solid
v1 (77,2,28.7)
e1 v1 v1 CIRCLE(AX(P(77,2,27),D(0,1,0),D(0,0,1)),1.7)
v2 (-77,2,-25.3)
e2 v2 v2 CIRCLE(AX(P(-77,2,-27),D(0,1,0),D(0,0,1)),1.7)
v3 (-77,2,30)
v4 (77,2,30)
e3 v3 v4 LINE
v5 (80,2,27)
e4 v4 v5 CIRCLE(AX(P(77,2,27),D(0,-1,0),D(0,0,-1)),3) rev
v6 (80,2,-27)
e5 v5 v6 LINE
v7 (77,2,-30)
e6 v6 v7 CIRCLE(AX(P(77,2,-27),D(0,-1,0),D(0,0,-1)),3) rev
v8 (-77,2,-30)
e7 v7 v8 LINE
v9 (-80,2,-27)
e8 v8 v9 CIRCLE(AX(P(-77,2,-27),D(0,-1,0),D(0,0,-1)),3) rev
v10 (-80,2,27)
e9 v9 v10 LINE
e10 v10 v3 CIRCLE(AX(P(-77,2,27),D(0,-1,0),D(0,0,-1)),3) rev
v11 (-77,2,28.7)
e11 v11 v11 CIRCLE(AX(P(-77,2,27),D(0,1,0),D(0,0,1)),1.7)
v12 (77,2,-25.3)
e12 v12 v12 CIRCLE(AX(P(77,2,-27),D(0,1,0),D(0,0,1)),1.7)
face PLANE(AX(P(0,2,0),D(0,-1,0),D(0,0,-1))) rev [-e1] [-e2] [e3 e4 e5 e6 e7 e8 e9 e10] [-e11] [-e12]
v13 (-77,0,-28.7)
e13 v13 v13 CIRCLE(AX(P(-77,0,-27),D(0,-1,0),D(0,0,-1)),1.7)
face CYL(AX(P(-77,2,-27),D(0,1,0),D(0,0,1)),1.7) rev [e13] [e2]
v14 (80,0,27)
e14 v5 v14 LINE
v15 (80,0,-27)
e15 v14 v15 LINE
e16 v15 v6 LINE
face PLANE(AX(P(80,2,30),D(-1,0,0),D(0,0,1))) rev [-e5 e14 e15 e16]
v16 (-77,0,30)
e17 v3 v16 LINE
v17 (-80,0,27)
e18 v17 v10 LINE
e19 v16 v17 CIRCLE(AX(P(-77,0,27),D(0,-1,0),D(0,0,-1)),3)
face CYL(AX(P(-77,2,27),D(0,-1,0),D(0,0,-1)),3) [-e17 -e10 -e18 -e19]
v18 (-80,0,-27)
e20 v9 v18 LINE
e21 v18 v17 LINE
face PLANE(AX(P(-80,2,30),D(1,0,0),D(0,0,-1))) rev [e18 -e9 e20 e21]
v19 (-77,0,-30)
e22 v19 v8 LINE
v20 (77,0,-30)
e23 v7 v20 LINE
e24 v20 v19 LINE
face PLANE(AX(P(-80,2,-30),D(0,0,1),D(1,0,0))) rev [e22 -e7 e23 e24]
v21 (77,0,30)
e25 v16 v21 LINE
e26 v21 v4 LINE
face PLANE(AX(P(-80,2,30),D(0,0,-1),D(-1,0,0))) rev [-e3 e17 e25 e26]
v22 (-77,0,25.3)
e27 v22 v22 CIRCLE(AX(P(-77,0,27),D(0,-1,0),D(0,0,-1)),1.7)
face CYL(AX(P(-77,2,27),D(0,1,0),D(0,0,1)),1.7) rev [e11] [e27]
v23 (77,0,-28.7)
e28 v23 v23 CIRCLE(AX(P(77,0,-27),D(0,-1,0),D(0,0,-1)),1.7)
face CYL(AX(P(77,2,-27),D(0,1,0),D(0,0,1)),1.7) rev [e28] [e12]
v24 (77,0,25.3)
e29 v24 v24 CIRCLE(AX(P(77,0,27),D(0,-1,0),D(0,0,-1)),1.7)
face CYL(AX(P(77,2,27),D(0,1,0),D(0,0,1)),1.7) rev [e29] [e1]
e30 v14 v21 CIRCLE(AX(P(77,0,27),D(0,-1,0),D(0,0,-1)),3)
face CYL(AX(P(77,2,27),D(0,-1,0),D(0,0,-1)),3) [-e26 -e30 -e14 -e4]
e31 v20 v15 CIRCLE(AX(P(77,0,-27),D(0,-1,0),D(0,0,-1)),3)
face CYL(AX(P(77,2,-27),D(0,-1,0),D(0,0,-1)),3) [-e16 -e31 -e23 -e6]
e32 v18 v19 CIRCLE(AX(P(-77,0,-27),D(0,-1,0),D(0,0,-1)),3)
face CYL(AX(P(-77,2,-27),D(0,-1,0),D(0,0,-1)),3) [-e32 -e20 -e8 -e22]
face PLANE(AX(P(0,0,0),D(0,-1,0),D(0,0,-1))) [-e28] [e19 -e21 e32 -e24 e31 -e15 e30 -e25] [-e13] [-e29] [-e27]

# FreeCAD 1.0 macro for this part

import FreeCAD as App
import Part
import Sketcher
from FreeCAD import Vector


def edges_at(feature, points):
    """Names of the edges that pass closest to the given points."""
    edges = feature.Shape.Edges
    near = lambda p: min(range(len(edges)), key=lambda i: edges[i].distToShape(Part.Vertex(*p))[0])
    return sorted({f"Edge{near(p) + 1}" for p in points})

doc = App.newDocument("Part")
body = doc.addObject("PartDesign::Body", "Body")

sketch1 = body.newObject("Sketcher::SketchObject", "Sketch")
sketch1.AttachmentSupport = (doc.getObject("XZ_Plane"), [""])
sketch1.MapMode = "FlatFace"
sketch1.addGeometry(Part.LineSegment(Vector(-80, -30, 0), Vector(-80, 30, 0)), False)
sketch1.addGeometry(Part.LineSegment(Vector(-80, 30, 0), Vector(80, 30, 0)), False)
sketch1.addGeometry(Part.LineSegment(Vector(80, 30, 0), Vector(80, -30, 0)), False)
sketch1.addGeometry(Part.LineSegment(Vector(80, -30, 0), Vector(-80, -30, 0)), False)
sketch1.addConstraint(Sketcher.Constraint("Coincident", 0, 2, 1, 1))
sketch1.addConstraint(Sketcher.Constraint("Coincident", 1, 2, 2, 1))
sketch1.addConstraint(Sketcher.Constraint("Coincident", 2, 2, 3, 1))
sketch1.addConstraint(Sketcher.Constraint("Coincident", 3, 2, 0, 1))
sketch1.addConstraint(Sketcher.Constraint("Vertical", 0))
sketch1.addConstraint(Sketcher.Constraint("Horizontal", 1))
sketch1.addConstraint(Sketcher.Constraint("Vertical", 2))
sketch1.addConstraint(Sketcher.Constraint("Horizontal", 3))
sketch1.addConstraint(Sketcher.Constraint("Symmetric", 0, 2, 2, 2, -1, 1))
sketch1.addConstraint(Sketcher.Constraint("DistanceX", 1, 1, 1, 2, 160.0))
sketch1.addConstraint(Sketcher.Constraint("DistanceY", 0, 1, 0, 2, 60.0))
pad1 = body.newObject("PartDesign::Pad", "Pad")
pad1.Profile = sketch1
pad1.Length = 2
pad1.Reversed = True
doc.recompute()

fillet = body.newObject("PartDesign::Fillet", "Fillet")
fillet.Base = (pad1, edges_at(pad1, [
    (80, 1, 30),
    (-80, 1, 30),
    (-80, 1, -30),
    (80, 1, -30),
]))
fillet.Radius = 3

sketch2 = body.newObject("Sketcher::SketchObject", "Sketch001")
sketch2.AttachmentSupport = (doc.getObject("XZ_Plane"), [""])
sketch2.MapMode = "FlatFace"
sketch2.AttachmentOffset = App.Placement(Vector(0, 0, -2), App.Rotation())
sketch2.addGeometry(Part.Circle(Vector(-77, -27, 0), Vector(0, 0, 1), 1.7), False)
sketch2.addGeometry(Part.Circle(Vector(-77, 27, 0), Vector(0, 0, 1), 1.7), False)
sketch2.addGeometry(Part.Circle(Vector(77, -27, 0), Vector(0, 0, 1), 1.7), False)
sketch2.addGeometry(Part.Circle(Vector(77, 27, 0), Vector(0, 0, 1), 1.7), False)
sketch2.addConstraint(Sketcher.Constraint("Equal", 0, 1))
sketch2.addConstraint(Sketcher.Constraint("Equal", 1, 2))
sketch2.addConstraint(Sketcher.Constraint("Equal", 2, 3))
sketch2.addConstraint(Sketcher.Constraint("Symmetric", 1, 3, 2, 3, -1, 1))
sketch2.addConstraint(Sketcher.Constraint("Symmetric", 0, 3, 3, 3, -1, 1))
sketch2.addConstraint(Sketcher.Constraint("Symmetric", 0, 3, 2, 3, -2))
sketch2.addConstraint(Sketcher.Constraint("Diameter", 0, 3.4))
sketch2.addConstraint(Sketcher.Constraint("DistanceX", 0, 3, -1, 1, 77.0))
sketch2.addConstraint(Sketcher.Constraint("DistanceY", 0, 3, -1, 1, 27.0))
doc.recompute()
hole = body.newObject("PartDesign::Hole", "Hole")
hole.Profile = sketch2
hole.ThreadType = "None"
hole.Diameter = 3.4
hole.DepthType = "Dimension"
hole.Depth = 10
hole.DrillPoint = "Flat"
hole.Reversed = True

doc.recompute()
